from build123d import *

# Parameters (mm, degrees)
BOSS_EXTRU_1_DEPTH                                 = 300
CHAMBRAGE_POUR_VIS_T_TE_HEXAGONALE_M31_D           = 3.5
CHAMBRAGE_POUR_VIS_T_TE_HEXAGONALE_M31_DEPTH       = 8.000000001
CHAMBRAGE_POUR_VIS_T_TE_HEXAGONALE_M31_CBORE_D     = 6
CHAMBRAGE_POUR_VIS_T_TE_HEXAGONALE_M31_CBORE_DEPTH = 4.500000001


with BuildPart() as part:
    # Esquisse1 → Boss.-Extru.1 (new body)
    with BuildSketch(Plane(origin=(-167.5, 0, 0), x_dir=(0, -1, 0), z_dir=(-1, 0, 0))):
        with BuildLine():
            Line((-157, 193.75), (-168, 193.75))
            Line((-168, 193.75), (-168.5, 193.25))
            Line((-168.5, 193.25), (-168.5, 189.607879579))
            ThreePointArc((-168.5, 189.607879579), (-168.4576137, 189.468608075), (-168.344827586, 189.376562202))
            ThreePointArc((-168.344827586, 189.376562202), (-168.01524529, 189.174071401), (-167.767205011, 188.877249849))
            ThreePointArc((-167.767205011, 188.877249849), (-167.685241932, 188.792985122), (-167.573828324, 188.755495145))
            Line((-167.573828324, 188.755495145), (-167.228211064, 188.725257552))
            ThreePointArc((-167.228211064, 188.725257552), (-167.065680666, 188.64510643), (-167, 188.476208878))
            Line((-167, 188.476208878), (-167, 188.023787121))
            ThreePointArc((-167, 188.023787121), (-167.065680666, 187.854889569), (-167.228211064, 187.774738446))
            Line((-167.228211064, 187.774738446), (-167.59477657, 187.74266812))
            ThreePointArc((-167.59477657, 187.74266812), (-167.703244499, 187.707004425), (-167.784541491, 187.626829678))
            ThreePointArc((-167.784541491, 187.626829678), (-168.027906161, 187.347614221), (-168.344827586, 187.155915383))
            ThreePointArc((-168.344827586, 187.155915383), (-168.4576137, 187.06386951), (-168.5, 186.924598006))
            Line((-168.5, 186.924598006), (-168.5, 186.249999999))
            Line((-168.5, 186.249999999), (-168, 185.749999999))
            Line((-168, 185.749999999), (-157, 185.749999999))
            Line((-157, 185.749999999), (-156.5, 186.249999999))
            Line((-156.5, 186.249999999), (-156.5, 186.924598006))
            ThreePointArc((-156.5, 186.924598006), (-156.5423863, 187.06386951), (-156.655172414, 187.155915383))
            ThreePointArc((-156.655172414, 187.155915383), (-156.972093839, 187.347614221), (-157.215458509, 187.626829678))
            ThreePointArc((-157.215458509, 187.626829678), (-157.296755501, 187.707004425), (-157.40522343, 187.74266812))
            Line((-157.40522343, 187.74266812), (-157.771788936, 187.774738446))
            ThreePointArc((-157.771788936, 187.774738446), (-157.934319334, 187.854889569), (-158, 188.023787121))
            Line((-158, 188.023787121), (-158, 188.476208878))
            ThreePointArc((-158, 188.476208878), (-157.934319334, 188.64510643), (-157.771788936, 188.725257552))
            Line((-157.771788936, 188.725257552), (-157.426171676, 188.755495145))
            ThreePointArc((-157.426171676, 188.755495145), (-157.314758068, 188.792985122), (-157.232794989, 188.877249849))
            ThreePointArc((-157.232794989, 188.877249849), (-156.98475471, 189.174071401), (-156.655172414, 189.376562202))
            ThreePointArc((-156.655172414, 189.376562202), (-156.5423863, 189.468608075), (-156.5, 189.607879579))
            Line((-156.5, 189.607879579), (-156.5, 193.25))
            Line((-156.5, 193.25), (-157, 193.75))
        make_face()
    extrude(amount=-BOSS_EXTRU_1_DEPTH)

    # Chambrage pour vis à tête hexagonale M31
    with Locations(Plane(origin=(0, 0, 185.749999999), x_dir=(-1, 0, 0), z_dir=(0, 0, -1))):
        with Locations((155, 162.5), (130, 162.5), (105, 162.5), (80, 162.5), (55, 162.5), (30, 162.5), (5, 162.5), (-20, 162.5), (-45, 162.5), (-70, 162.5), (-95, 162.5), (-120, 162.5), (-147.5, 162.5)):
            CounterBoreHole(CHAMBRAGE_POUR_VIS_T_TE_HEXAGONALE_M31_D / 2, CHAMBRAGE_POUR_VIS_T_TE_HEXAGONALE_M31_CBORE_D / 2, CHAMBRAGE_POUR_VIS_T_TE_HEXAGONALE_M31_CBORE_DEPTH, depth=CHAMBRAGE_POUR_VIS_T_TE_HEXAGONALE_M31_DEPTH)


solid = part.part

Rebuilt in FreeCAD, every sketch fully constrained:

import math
import FreeCAD as App
import Part
import Sketcher

V = App.Vector
Q = App.Units.Quantity

doc = App.newDocument("Part")
params = doc.addObject("Spreadsheet::Sheet", "Params")
for row, (alias, value) in enumerate([
    ("sketch1_radius", "1.2 mm"),
    ("sketch1_width", "11 mm"),
    ("sketch1_radius2", "0.25 mm"),
    ("pad1_length", "300 mm"),
    ("sketch2_diameter", "3.5 mm"),
    ("hole_diameter", "3.5 mm"),
    ("hole_depth", "8 mm"),
    ("hole_cbore_diameter", "6 mm"),
    ("hole_cbore_depth", "4.5 mm"),
], start=1):
    params.set(f"A{row}", alias)
    params.set(f"B{row}", "=" + value)
    params.setAlias(f"B{row}", alias)

body = doc.addObject("PartDesign::Body", "Body")

# Sketch on YZ plane
sketch1 = doc.addObject("Sketcher::SketchObject", "Sketch")
body.addObject(sketch1)
sketch1.AttachmentSupport = (doc.YZ_Plane, [""])
sketch1.MapMode = "FlatFace"
sketch1.AttachmentOffset = App.Placement(V(0, 0, -167.5), App.Rotation())
sketch1.addGeometry(Part.LineSegment(V(157, 193.75, 0), V(168, 193.75, 0)), False)
sketch1.addGeometry(Part.LineSegment(V(168, 193.75, 0), V(168.5, 193.25, 0)), False)
sketch1.addGeometry(Part.LineSegment(V(168.5, 193.25, 0), V(168.5, 189.60788, 0)), False)
sketch1.addGeometry(Part.ArcOfCircle(Part.Circle(V(168.25, 189.60788, 0), V(0, 0, 1), 0.25), math.radians(-67.70903), math.radians(0)), False)
sketch1.addGeometry(Part.ArcOfCircle(Part.Circle(V(168.8, 188.266239, 0), V(0, 0, 1), 1.2), math.radians(112.29097), math.radians(149.391049)), False)
sketch1.addGeometry(Part.ArcOfCircle(Part.Circle(V(167.552039, 189.004544, 0), V(0, 0, 1), 0.25), math.radians(-85), math.radians(-30.608951)), False)
sketch1.addGeometry(Part.LineSegment(V(167.573828, 188.755495, 0), V(167.228211, 188.725258, 0)), False)
sketch1.addGeometry(Part.ArcOfCircle(Part.Circle(V(167.25, 188.476209, 0), V(0, 0, 1), 0.25), math.radians(95), math.radians(180)), False)
sketch1.addGeometry(Part.LineSegment(V(167, 188.476209, 0), V(167, 188.023787, 0)), False)
sketch1.addGeometry(Part.ArcOfCircle(Part.Circle(V(167.25, 188.023787, 0), V(0, 0, 1), 0.25), math.radians(-180), math.radians(-95)), False)
sketch1.addGeometry(Part.LineSegment(V(167.228211, 187.774738, 0), V(167.594777, 187.742668, 0)), False)
sketch1.addGeometry(Part.ArcOfCircle(Part.Circle(V(167.572988, 187.493619, 0), V(0, 0, 1), 0.25), math.radians(32.197607), math.radians(85)), False)
sketch1.addGeometry(Part.ArcOfCircle(Part.Circle(V(168.8, 188.266239, 0), V(0, 0, 1), 1.2), math.radians(-147.802393), math.radians(-112.29097)), False)
sketch1.addGeometry(Part.ArcOfCircle(Part.Circle(V(168.25, 186.924598, 0), V(0, 0, 1), 0.25), math.radians(0), math.radians(67.70903)), False)
sketch1.addGeometry(Part.LineSegment(V(168.5, 186.924598, 0), V(168.5, 186.25, 0)), False)
sketch1.addGeometry(Part.LineSegment(V(168.5, 186.25, 0), V(168, 185.75, 0)), False)
sketch1.addGeometry(Part.LineSegment(V(168, 185.75, 0), V(157, 185.75, 0)), False)
sketch1.addGeometry(Part.LineSegment(V(157, 185.75, 0), V(156.5, 186.25, 0)), False)
sketch1.addGeometry(Part.LineSegment(V(156.5, 186.25, 0), V(156.5, 186.924598, 0)), False)
sketch1.addGeometry(Part.ArcOfCircle(Part.Circle(V(156.75, 186.924598, 0), V(0, 0, 1), 0.25), math.radians(112.29097), math.radians(180)), False)
sketch1.addGeometry(Part.ArcOfCircle(Part.Circle(V(156.2, 188.266239, 0), V(0, 0, 1), 1.2), math.radians(-67.70903), math.radians(-32.197607)), False)
sketch1.addGeometry(Part.ArcOfCircle(Part.Circle(V(157.427012, 187.493619, 0), V(0, 0, 1), 0.25), math.radians(95), math.radians(147.802393)), False)
sketch1.addGeometry(Part.LineSegment(V(157.405223, 187.742668, 0), V(157.771789, 187.774738, 0)), False)
sketch1.addGeometry(Part.ArcOfCircle(Part.Circle(V(157.75, 188.023787, 0), V(0, 0, 1), 0.25), math.radians(-85), math.radians(0)), False)
sketch1.addGeometry(Part.LineSegment(V(158, 188.023787, 0), V(158, 188.476209, 0)), False)
sketch1.addGeometry(Part.ArcOfCircle(Part.Circle(V(157.75, 188.476209, 0), V(0, 0, 1), 0.25), math.radians(0), math.radians(85)), False)
sketch1.addGeometry(Part.LineSegment(V(157.771789, 188.725258, 0), V(157.426172, 188.755495, 0)), False)
sketch1.addGeometry(Part.ArcOfCircle(Part.Circle(V(157.447961, 189.004544, 0), V(0, 0, 1), 0.25), math.radians(-149.391049), math.radians(-95)), False)
sketch1.addGeometry(Part.ArcOfCircle(Part.Circle(V(156.2, 188.266239, 0), V(0, 0, 1), 1.2), math.radians(30.608951), math.radians(67.70903)), False)
sketch1.addGeometry(Part.ArcOfCircle(Part.Circle(V(156.75, 189.60788, 0), V(0, 0, 1), 0.25), math.radians(180), math.radians(247.70903)), False)
sketch1.addGeometry(Part.LineSegment(V(156.5, 189.60788, 0), V(156.5, 193.25, 0)), False)
sketch1.addGeometry(Part.LineSegment(V(156.5, 193.25, 0), V(157, 193.75, 0)), False)
sketch1.addConstraint(Sketcher.Constraint("Coincident", 0, 2, 1, 1))
sketch1.addConstraint(Sketcher.Constraint("Coincident", 1, 2, 2, 1))
sketch1.addConstraint(Sketcher.Constraint("Tangent", 2, 2, 3, 2))
sketch1.addConstraint(Sketcher.Constraint("Tangent", 3, 1, 4, 1))
sketch1.addConstraint(Sketcher.Constraint("Tangent", 4, 2, 5, 2))
sketch1.addConstraint(Sketcher.Constraint("Tangent", 5, 1, 6, 1))
sketch1.addConstraint(Sketcher.Constraint("Tangent", 6, 2, 7, 1))
sketch1.addConstraint(Sketcher.Constraint("Tangent", 7, 2, 8, 1))
sketch1.addConstraint(Sketcher.Constraint("Tangent", 8, 2, 9, 1))
sketch1.addConstraint(Sketcher.Constraint("Tangent", 9, 2, 10, 1))
sketch1.addConstraint(Sketcher.Constraint("Tangent", 10, 2, 11, 2))
sketch1.addConstraint(Sketcher.Constraint("Tangent", 11, 1, 12, 1))
sketch1.addConstraint(Sketcher.Constraint("Tangent", 12, 2, 13, 2))
sketch1.addConstraint(Sketcher.Constraint("Tangent", 13, 1, 14, 1))
sketch1.addConstraint(Sketcher.Constraint("Coincident", 14, 2, 15, 1))
sketch1.addConstraint(Sketcher.Constraint("Coincident", 15, 2, 16, 1))
sketch1.addConstraint(Sketcher.Constraint("Coincident", 16, 2, 17, 1))
sketch1.addConstraint(Sketcher.Constraint("Coincident", 17, 2, 18, 1))
sketch1.addConstraint(Sketcher.Constraint("Tangent", 18, 2, 19, 2))
sketch1.addConstraint(Sketcher.Constraint("Tangent", 19, 1, 20, 1))
sketch1.addConstraint(Sketcher.Constraint("Tangent", 20, 2, 21, 2))
sketch1.addConstraint(Sketcher.Constraint("Tangent", 21, 1, 22, 1))
sketch1.addConstraint(Sketcher.Constraint("Tangent", 22, 2, 23, 1))
sketch1.addConstraint(Sketcher.Constraint("Tangent", 23, 2, 24, 1))
sketch1.addConstraint(Sketcher.Constraint("Tangent", 24, 2, 25, 1))
sketch1.addConstraint(Sketcher.Constraint("Tangent", 25, 2, 26, 1))
sketch1.addConstraint(Sketcher.Constraint("Tangent", 26, 2, 27, 2))
sketch1.addConstraint(Sketcher.Constraint("Tangent", 27, 1, 28, 1))
sketch1.addConstraint(Sketcher.Constraint("Tangent", 28, 2, 29, 2))
sketch1.addConstraint(Sketcher.Constraint("Tangent", 29, 1, 30, 1))
sketch1.addConstraint(Sketcher.Constraint("Coincident", 30, 2, 31, 1))
sketch1.addConstraint(Sketcher.Constraint("Coincident", 31, 2, 0, 1))
sketch1.addConstraint(Sketcher.Constraint("Horizontal", 0))
sketch1.addConstraint(Sketcher.Constraint("Vertical", 2))
sketch1.addConstraint(Sketcher.Constraint("Vertical", 8))
sketch1.addConstraint(Sketcher.Constraint("Vertical", 14))
sketch1.addConstraint(Sketcher.Constraint("Horizontal", 16))
sketch1.addConstraint(Sketcher.Constraint("Vertical", 18))
sketch1.addConstraint(Sketcher.Constraint("Vertical", 24))
sketch1.addConstraint(Sketcher.Constraint("Vertical", 30))
sketch1.addConstraint(Sketcher.Constraint("Coincident", 12, 3, 4, 3))
sketch1.addConstraint(Sketcher.Constraint("Coincident", 28, 3, 20, 3))
sketch1.addConstraint(Sketcher.Constraint("Equal", 3, 5))
sketch1.addConstraint(Sketcher.Constraint("Equal", 5, 7))
sketch1.addConstraint(Sketcher.Constraint("Equal", 7, 9))
sketch1.addConstraint(Sketcher.Constraint("Equal", 9, 11))
sketch1.addConstraint(Sketcher.Constraint("Equal", 4, 12))
sketch1.addConstraint(Sketcher.Constraint("Equal", 11, 13))
sketch1.addConstraint(Sketcher.Constraint("Equal", 13, 19))
sketch1.addConstraint(Sketcher.Constraint("Equal", 12, 20))
sketch1.addConstraint(Sketcher.Constraint("Equal", 19, 21))
sketch1.addConstraint(Sketcher.Constraint("Equal", 21, 23))
sketch1.addConstraint(Sketcher.Constraint("Equal", 23, 25))
sketch1.addConstraint(Sketcher.Constraint("Equal", 25, 27))
sketch1.addConstraint(Sketcher.Constraint("Equal", 20, 28))
sketch1.addConstraint(Sketcher.Constraint("Equal", 27, 29))
sketch1.addConstraint(Sketcher.Constraint("Perpendicular", 1, 15))
sketch1.addConstraint(Sketcher.Constraint("Perpendicular", 15, 17))
sketch1.addConstraint(Sketcher.Constraint("Parallel", 6, 22))
sketch1.addConstraint(Sketcher.Constraint("Parallel", 10, 26))
sketch1.addConstraint(Sketcher.Constraint("Perpendicular", 17, 31))
sketch1.addConstraint(Sketcher.Constraint("Horizontal", 13, 3, 19, 3))
sketch1.addConstraint(Sketcher.Constraint("Horizontal", 12, 3, 20, 3))
sketch1.addConstraint(Sketcher.Constraint("Horizontal", 11, 3, 21, 3))
sketch1.addConstraint(Sketcher.Constraint("Horizontal", 9, 3, 23, 3))
sketch1.addConstraint(Sketcher.Constraint("Horizontal", 7, 3, 25, 3))
sketch1.addConstraint(Sketcher.Constraint("Horizontal", 5, 3, 27, 3))
sketch1.addConstraint(Sketcher.Constraint("Horizontal", 3, 3, 29, 3))
sketch1.addConstraint(Sketcher.Constraint("Horizontal", 14, 2, 17, 2))
sketch1.addConstraint(Sketcher.Constraint("Horizontal", 1, 2, 30, 2))
sketch1.addConstraint(Sketcher.Constraint("Vertical", 3, 3, 13, 3))
sketch1.addConstraint(Sketcher.Constraint("Vertical", 0, 2, 15, 2))
sketch1.addConstraint(Sketcher.Constraint("Vertical", 16, 2, 31, 2))
sketch1.addConstraint(Sketcher.Constraint("Radius", 4, Q("1.2 mm")))
sketch1.addConstraint(Sketcher.Constraint("DistanceX", 0, 1, 0, 2, Q("11 mm")))
sketch1.addConstraint(Sketcher.Constraint("Angle", 6, Q("-175 deg")))
sketch1.addConstraint(Sketcher.Constraint("Radius", 3, Q("0.25 mm")))
sketch1.addConstraint(Sketcher.Constraint("DistanceX", -1, 1, 0, 2, Q("168 mm")))
sketch1.addConstraint(Sketcher.Constraint("DistanceX", -1, 1, 7, 2, Q("167 mm")))
sketch1.addConstraint(Sketcher.Constraint("DistanceX", 7, 3, 3, 3, Q("1 mm")))
sketch1.addConstraint(Sketcher.Constraint("DistanceX", -1, 1, 4, 3, Q("168.8 mm")))
sketch1.addConstraint(Sketcher.Constraint("DistanceY", -1, 1, 0, 2, Q("193.75 mm")))
sketch1.addConstraint(Sketcher.Constraint("DistanceY", -1, 1, 14, 2, Q("186.25 mm")))
sketch1.addConstraint(Sketcher.Constraint("DistanceY", 14, 2, 14, 1, Q("0.674598 mm")))
sketch1.addConstraint(Sketcher.Constraint("DistanceX", 5, 1, 3, 1, Q("0.770999 mm")))
sketch1.addConstraint(Sketcher.Constraint("DistanceY", 8, 2, 8, 1, Q("0.452422 mm")))
sketch1.setExpression("Constraints[73]", "Params.sketch1_radius")
sketch1.setExpression("Constraints[74]", "Params.sketch1_width")
sketch1.setExpression("Constraints[76]", "Params.sketch1_radius2")
pad1 = doc.addObject("PartDesign::Pad", "Pad")
body.addObject(pad1)
pad1.Profile = sketch1
pad1.setExpression("Length", "Params.pad1_length")

# Sketch on XY plane
sketch2 = doc.addObject("Sketcher::SketchObject", "Sketch001")
body.addObject(sketch2)
sketch2.AttachmentSupport = (doc.XY_Plane, [""])
sketch2.MapMode = "FlatFace"
sketch2.AttachmentOffset = App.Placement(V(0, 0, 185.75), App.Rotation())
sketch2.addGeometry(Part.Circle(V(-155, 162.5, 0), V(0, 0, 1), 1.75), False)
sketch2.addGeometry(Part.Circle(V(-130, 162.5, 0), V(0, 0, 1), 1.75), False)
sketch2.addGeometry(Part.Circle(V(-105, 162.5, 0), V(0, 0, 1), 1.75), False)
sketch2.addGeometry(Part.Circle(V(-80, 162.5, 0), V(0, 0, 1), 1.75), False)
sketch2.addGeometry(Part.Circle(V(-55, 162.5, 0), V(0, 0, 1), 1.75), False)
sketch2.addGeometry(Part.Circle(V(-30, 162.5, 0), V(0, 0, 1), 1.75), False)
sketch2.addGeometry(Part.Circle(V(-5, 162.5, 0), V(0, 0, 1), 1.75), False)
sketch2.addGeometry(Part.Circle(V(20, 162.5, 0), V(0, 0, 1), 1.75), False)
sketch2.addGeometry(Part.Circle(V(45, 162.5, 0), V(0, 0, 1), 1.75), False)
sketch2.addGeometry(Part.Circle(V(70, 162.5, 0), V(0, 0, 1), 1.75), False)
sketch2.addGeometry(Part.Circle(V(95, 162.5, 0), V(0, 0, 1), 1.75), False)
sketch2.addGeometry(Part.Circle(V(120, 162.5, 0), V(0, 0, 1), 1.75), False)
sketch2.addGeometry(Part.Circle(V(147.5, 162.5, 0), V(0, 0, 1), 1.75), False)
sketch2.addConstraint(Sketcher.Constraint("Equal", 0, 1))
sketch2.addConstraint(Sketcher.Constraint("Equal", 1, 2))
sketch2.addConstraint(Sketcher.Constraint("Equal", 2, 3))
sketch2.addConstraint(Sketcher.Constraint("Equal", 3, 4))
sketch2.addConstraint(Sketcher.Constraint("Equal", 4, 5))
sketch2.addConstraint(Sketcher.Constraint("Equal", 5, 6))
sketch2.addConstraint(Sketcher.Constraint("Equal", 6, 7))
sketch2.addConstraint(Sketcher.Constraint("Equal", 7, 8))
sketch2.addConstraint(Sketcher.Constraint("Equal", 8, 9))
sketch2.addConstraint(Sketcher.Constraint("Equal", 9, 10))
sketch2.addConstraint(Sketcher.Constraint("Equal", 10, 11))
sketch2.addConstraint(Sketcher.Constraint("Equal", 11, 12))
sketch2.addConstraint(Sketcher.Constraint("Horizontal", 0, 3, 1, 3))
sketch2.addConstraint(Sketcher.Constraint("Horizontal", 1, 3, 2, 3))
sketch2.addConstraint(Sketcher.Constraint("Horizontal", 2, 3, 3, 3))
sketch2.addConstraint(Sketcher.Constraint("Horizontal", 3, 3, 4, 3))
sketch2.addConstraint(Sketcher.Constraint("Horizontal", 4, 3, 5, 3))
sketch2.addConstraint(Sketcher.Constraint("Horizontal", 5, 3, 6, 3))
sketch2.addConstraint(Sketcher.Constraint("Horizontal", 6, 3, 7, 3))
sketch2.addConstraint(Sketcher.Constraint("Horizontal", 7, 3, 8, 3))
sketch2.addConstraint(Sketcher.Constraint("Horizontal", 8, 3, 9, 3))
sketch2.addConstraint(Sketcher.Constraint("Horizontal", 9, 3, 10, 3))
sketch2.addConstraint(Sketcher.Constraint("Horizontal", 10, 3, 11, 3))
sketch2.addConstraint(Sketcher.Constraint("Horizontal", 11, 3, 12, 3))
sketch2.addConstraint(Sketcher.Constraint("Diameter", 0, Q("3.5 mm")))
sketch2.addConstraint(Sketcher.Constraint("DistanceX", 0, 3, -1, 1, Q("155 mm")))
sketch2.addConstraint(Sketcher.Constraint("DistanceX", 1, 3, -1, 1, Q("130 mm")))
sketch2.addConstraint(Sketcher.Constraint("DistanceX", 2, 3, -1, 1, Q("105 mm")))
sketch2.addConstraint(Sketcher.Constraint("DistanceX", 3, 3, -1, 1, Q("80 mm")))
sketch2.addConstraint(Sketcher.Constraint("DistanceX", 4, 3, -1, 1, Q("55 mm")))
sketch2.addConstraint(Sketcher.Constraint("DistanceX", 5, 3, -1, 1, Q("30 mm")))
sketch2.addConstraint(Sketcher.Constraint("DistanceX", 6, 3, -1, 1, Q("5 mm")))
sketch2.addConstraint(Sketcher.Constraint("DistanceX", -1, 1, 7, 3, Q("20 mm")))
sketch2.addConstraint(Sketcher.Constraint("DistanceX", -1, 1, 8, 3, Q("45 mm")))
sketch2.addConstraint(Sketcher.Constraint("DistanceX", -1, 1, 9, 3, Q("70 mm")))
sketch2.addConstraint(Sketcher.Constraint("DistanceX", -1, 1, 10, 3, Q("95 mm")))
sketch2.addConstraint(Sketcher.Constraint("DistanceX", -1, 1, 11, 3, Q("120 mm")))
sketch2.addConstraint(Sketcher.Constraint("DistanceY", -1, 1, 0, 3, Q("162.5 mm")))
sketch2.addConstraint(Sketcher.Constraint("DistanceX", -1, 1, 12, 3, Q("147.5 mm")))
sketch2.setExpression("Constraints[24]", "Params.sketch2_diameter")
doc.recompute()
hole = doc.addObject("PartDesign::Hole", "Hole")
body.addObject(hole)
hole.Profile = sketch2
hole.ThreadType = "None"
hole.setExpression("Diameter", "Params.hole_diameter")
hole.DepthType = "Dimension"
hole.setExpression("Depth", "Params.hole_depth")
hole.DrillPoint = "Flat"
hole.HoleCutType = "Counterbore"
hole.setExpression("HoleCutDiameter", "Params.hole_cbore_diameter")
hole.setExpression("HoleCutDepth", "Params.hole_cbore_depth")
hole.Reversed = True

doc.recompute()
